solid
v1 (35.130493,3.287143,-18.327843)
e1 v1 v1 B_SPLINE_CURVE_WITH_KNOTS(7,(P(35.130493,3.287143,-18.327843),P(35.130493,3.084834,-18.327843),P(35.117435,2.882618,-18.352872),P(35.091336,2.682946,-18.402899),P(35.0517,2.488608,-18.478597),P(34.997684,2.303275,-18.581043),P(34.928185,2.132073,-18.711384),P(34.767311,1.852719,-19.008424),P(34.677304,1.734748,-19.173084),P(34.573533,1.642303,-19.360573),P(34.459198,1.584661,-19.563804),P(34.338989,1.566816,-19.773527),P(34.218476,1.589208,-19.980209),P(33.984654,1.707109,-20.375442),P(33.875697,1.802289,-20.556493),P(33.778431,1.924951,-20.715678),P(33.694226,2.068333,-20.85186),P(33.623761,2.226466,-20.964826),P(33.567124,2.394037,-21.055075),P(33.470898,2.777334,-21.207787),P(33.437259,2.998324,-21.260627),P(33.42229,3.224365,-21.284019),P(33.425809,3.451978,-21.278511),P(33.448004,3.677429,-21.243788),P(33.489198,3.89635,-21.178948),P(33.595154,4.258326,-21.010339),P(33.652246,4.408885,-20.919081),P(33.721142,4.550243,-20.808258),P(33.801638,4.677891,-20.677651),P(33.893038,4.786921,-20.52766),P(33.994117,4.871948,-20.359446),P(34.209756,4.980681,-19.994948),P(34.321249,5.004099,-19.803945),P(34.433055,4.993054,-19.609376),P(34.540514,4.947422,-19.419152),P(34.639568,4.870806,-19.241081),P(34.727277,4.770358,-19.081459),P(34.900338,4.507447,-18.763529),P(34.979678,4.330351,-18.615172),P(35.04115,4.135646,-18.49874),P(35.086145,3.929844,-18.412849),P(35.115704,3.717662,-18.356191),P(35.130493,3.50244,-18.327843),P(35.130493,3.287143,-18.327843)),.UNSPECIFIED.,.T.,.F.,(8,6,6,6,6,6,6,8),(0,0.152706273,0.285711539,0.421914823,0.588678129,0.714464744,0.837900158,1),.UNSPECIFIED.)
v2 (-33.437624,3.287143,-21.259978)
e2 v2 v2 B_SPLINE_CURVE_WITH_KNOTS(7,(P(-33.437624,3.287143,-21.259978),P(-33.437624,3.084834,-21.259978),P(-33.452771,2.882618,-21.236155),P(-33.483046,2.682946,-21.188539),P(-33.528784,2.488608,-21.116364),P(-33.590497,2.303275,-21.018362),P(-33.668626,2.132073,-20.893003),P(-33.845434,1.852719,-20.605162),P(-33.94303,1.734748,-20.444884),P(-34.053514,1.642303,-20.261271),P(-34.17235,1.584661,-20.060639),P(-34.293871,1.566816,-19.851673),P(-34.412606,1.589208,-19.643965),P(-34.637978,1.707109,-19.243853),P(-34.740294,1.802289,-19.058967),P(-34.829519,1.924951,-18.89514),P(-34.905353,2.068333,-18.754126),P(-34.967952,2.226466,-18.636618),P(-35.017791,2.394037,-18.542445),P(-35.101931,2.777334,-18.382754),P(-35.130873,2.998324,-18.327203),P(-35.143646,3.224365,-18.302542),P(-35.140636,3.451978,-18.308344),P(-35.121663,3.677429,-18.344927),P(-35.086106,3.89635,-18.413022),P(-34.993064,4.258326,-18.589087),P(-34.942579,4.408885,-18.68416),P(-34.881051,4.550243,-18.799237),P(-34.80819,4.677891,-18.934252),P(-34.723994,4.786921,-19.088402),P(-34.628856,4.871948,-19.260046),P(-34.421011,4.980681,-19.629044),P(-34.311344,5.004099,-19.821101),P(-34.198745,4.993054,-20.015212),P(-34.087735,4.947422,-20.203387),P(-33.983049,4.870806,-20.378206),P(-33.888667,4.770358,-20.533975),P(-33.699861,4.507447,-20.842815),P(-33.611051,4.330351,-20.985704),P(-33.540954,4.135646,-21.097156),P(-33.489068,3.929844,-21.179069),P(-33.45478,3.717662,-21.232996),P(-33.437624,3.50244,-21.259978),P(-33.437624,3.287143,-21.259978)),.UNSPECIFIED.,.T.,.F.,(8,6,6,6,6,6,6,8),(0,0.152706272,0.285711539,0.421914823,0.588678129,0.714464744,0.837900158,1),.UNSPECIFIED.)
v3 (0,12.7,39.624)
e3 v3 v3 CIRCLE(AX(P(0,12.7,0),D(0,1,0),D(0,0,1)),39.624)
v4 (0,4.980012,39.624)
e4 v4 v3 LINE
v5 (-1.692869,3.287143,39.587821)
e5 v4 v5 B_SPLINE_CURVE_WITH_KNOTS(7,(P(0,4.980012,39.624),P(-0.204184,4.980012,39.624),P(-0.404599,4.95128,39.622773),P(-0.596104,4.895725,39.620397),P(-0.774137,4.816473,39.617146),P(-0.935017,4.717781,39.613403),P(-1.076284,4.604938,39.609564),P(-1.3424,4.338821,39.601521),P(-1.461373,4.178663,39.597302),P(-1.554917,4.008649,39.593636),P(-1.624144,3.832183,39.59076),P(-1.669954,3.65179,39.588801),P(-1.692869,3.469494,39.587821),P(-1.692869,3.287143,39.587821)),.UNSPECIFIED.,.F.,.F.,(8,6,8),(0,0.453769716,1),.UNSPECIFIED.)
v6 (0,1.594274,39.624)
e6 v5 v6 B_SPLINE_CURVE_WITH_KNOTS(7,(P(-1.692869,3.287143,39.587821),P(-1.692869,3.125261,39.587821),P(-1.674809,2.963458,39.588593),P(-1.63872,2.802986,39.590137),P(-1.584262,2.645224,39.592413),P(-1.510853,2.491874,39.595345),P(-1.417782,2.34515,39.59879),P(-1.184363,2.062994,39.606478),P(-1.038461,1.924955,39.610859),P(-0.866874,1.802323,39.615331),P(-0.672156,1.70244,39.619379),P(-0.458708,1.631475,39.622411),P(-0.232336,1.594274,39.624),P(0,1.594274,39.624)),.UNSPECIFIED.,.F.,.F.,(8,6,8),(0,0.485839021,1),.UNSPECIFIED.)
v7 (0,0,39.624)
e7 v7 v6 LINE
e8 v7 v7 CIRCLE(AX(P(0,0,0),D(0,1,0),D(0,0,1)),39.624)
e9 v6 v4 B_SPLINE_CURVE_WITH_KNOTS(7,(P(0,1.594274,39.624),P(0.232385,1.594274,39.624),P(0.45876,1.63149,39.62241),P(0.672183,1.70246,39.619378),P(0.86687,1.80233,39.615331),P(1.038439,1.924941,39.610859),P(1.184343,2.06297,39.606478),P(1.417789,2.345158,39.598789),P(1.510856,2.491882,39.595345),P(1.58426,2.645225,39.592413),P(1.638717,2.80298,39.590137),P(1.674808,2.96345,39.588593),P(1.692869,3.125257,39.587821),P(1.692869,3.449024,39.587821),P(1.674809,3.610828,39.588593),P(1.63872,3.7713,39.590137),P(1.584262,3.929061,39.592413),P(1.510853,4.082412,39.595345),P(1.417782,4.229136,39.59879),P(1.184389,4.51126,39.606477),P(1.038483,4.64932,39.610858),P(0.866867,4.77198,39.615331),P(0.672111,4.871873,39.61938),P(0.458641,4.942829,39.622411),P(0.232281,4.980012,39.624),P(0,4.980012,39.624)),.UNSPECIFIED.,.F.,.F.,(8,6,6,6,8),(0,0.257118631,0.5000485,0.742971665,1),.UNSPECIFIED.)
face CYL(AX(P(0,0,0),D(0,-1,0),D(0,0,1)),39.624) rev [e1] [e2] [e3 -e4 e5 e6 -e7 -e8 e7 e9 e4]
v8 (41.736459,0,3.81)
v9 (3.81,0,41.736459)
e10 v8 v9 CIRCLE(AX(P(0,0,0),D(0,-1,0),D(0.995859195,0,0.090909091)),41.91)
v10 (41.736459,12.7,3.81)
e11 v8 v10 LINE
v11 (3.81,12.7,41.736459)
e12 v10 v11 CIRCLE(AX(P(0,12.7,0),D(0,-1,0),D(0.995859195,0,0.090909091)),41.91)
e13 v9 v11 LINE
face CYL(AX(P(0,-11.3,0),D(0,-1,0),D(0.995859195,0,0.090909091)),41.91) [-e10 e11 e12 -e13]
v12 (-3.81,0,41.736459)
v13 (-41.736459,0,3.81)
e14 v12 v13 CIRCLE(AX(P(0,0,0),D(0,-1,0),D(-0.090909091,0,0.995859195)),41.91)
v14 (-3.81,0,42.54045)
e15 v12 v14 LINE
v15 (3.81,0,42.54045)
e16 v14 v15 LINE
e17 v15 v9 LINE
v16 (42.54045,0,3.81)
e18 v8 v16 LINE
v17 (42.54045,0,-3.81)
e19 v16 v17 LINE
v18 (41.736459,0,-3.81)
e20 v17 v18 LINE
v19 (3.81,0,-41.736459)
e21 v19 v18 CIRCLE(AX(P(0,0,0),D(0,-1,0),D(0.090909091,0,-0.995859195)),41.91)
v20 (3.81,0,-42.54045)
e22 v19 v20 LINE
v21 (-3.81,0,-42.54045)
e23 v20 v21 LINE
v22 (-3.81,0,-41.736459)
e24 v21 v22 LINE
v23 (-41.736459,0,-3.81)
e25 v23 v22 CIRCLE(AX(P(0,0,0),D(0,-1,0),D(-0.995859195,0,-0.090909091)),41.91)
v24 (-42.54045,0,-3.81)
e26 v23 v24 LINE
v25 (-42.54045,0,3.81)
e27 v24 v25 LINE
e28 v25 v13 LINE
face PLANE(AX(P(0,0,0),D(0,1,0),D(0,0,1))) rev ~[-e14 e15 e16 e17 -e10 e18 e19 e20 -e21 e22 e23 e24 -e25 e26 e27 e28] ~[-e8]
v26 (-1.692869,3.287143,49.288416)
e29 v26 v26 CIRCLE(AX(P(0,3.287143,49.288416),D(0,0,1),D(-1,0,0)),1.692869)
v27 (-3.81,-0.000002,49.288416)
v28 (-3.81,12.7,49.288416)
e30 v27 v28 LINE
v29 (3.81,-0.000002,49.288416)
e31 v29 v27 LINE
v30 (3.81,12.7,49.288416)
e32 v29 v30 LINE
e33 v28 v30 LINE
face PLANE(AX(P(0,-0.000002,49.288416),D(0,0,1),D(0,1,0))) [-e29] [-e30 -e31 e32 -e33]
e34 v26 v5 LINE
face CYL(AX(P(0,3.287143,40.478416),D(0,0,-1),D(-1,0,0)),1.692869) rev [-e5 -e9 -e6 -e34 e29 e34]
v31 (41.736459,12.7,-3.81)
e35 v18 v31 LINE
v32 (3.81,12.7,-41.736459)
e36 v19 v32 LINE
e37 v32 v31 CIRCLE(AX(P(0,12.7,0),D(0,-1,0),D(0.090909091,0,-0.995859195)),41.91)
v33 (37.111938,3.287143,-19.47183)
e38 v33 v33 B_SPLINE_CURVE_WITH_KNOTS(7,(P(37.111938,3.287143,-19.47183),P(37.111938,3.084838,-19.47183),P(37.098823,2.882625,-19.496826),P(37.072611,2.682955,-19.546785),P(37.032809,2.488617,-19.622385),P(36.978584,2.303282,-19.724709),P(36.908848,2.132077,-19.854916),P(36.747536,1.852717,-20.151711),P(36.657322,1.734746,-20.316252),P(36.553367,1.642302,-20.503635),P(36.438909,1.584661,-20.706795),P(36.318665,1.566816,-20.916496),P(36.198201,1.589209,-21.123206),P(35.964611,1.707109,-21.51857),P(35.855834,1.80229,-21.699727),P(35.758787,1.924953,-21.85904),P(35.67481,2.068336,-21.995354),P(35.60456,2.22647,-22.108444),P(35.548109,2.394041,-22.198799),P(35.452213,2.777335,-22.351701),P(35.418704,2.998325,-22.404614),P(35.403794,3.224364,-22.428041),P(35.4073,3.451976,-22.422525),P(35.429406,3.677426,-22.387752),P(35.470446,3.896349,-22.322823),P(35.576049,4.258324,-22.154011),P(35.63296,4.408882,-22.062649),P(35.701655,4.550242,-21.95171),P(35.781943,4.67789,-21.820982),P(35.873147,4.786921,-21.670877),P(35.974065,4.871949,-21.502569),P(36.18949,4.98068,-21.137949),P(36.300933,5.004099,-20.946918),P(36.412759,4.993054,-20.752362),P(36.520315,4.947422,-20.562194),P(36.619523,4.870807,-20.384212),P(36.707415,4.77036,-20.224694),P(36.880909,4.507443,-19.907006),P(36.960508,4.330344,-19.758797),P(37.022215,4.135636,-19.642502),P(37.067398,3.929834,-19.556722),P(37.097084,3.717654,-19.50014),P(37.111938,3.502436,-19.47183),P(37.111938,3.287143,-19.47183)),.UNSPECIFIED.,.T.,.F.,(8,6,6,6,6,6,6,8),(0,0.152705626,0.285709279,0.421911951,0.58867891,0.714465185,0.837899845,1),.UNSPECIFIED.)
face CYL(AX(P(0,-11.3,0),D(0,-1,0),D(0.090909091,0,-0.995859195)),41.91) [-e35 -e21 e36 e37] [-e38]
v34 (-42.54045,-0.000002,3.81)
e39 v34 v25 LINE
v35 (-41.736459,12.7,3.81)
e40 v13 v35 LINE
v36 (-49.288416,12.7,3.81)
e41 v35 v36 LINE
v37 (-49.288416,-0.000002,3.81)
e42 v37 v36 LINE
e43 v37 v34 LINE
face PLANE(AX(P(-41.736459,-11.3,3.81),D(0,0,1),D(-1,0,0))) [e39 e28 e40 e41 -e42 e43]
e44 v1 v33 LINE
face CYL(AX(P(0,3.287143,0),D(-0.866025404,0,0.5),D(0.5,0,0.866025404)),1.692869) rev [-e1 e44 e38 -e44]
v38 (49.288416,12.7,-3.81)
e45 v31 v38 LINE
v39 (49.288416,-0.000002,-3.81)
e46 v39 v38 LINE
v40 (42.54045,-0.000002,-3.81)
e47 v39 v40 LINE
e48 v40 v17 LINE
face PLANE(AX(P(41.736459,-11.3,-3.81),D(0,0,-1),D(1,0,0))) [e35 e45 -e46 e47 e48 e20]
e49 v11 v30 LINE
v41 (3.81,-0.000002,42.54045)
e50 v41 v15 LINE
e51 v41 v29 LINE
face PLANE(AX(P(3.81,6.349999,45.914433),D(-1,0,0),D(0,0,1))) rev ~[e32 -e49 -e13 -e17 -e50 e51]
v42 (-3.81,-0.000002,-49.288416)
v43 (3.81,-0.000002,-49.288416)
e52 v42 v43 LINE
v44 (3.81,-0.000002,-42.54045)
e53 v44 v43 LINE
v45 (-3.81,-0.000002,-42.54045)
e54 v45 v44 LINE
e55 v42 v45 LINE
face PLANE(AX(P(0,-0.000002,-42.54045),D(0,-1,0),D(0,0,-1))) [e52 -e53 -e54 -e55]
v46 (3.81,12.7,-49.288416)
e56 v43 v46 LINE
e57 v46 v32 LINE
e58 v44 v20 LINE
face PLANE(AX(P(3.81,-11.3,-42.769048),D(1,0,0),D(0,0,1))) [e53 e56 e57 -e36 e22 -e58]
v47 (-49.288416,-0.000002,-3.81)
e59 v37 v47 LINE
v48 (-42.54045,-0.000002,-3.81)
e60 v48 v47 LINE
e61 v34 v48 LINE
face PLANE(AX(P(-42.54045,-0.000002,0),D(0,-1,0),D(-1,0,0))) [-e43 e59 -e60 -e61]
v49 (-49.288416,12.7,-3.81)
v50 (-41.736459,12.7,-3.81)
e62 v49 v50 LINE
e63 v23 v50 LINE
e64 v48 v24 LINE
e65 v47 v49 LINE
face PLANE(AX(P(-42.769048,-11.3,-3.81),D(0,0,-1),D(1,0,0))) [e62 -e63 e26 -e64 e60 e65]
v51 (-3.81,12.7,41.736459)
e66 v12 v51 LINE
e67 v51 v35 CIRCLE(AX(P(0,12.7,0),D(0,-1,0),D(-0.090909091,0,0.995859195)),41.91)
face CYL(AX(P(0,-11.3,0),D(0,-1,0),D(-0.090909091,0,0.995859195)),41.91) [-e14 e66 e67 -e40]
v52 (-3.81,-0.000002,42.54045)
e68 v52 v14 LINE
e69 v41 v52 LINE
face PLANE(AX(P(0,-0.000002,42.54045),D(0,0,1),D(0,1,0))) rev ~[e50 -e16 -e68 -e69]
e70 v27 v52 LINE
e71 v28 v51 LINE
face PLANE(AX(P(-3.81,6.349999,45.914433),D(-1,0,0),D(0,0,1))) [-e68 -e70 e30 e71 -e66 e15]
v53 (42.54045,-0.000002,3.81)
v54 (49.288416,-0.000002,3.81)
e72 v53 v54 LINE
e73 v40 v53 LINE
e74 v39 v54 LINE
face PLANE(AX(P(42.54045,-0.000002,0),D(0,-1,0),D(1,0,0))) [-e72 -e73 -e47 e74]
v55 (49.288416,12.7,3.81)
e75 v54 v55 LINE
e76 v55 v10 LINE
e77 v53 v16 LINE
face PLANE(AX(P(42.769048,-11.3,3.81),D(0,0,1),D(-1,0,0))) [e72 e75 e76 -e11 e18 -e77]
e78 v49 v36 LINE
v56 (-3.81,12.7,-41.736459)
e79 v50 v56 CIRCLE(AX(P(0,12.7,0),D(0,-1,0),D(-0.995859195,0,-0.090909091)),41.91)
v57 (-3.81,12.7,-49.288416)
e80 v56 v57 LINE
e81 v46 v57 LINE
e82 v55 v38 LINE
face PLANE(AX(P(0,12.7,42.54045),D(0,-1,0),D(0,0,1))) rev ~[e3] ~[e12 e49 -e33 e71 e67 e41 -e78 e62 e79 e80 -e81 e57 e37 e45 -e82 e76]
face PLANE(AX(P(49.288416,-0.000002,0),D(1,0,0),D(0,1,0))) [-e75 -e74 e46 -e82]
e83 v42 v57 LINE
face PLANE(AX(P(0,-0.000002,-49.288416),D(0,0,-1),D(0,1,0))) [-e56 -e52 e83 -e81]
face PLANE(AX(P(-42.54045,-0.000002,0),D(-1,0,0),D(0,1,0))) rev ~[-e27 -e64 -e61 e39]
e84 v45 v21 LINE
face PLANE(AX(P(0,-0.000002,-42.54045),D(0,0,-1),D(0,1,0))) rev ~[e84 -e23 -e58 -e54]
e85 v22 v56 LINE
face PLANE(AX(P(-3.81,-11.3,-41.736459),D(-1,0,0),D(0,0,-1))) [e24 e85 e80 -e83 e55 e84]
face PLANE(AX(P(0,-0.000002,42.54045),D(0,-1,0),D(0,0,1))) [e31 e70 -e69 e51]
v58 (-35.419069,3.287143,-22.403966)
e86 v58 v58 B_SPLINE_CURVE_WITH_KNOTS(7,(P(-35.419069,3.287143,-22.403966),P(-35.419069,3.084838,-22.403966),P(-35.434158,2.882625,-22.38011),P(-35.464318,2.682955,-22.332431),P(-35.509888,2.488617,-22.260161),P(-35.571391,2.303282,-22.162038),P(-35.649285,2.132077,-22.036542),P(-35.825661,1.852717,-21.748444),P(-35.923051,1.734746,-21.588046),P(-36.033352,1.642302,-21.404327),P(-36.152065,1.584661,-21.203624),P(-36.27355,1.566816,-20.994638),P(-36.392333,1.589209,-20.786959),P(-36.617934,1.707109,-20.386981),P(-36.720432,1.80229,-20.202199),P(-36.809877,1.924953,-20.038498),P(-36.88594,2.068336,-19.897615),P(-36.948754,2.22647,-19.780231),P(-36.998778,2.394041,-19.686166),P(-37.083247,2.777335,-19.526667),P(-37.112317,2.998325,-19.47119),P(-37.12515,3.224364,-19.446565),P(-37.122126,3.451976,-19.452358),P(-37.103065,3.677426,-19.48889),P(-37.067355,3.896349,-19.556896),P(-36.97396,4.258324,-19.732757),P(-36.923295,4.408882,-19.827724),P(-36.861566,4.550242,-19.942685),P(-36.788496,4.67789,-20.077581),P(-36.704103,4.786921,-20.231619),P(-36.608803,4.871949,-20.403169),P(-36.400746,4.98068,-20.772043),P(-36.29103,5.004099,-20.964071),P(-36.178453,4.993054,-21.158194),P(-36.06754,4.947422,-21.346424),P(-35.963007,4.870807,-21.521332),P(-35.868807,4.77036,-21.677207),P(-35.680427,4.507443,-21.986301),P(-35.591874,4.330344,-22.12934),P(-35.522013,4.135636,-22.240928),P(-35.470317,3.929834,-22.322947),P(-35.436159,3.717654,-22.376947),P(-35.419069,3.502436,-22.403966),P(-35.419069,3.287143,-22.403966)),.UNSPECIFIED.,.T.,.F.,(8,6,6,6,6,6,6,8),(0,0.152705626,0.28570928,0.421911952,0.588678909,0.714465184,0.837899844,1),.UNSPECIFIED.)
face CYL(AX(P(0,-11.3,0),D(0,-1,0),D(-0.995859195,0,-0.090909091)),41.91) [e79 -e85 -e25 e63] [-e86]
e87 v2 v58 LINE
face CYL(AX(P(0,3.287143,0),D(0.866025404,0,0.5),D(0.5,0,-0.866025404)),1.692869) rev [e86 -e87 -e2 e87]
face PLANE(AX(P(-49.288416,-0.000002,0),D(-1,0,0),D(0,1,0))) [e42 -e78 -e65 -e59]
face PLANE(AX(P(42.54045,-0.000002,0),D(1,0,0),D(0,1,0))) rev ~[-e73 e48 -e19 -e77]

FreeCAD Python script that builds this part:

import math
import FreeCAD as App
import Part
import Sketcher
from FreeCAD import Vector
Q = App.Units.Quantity


def add_polygon(sketch, points):
    """Adds a closed chain of lines whose ends are joined by coincident constraints."""
    first, n = sketch.GeometryCount, len(points)
    for a, b in zip(points, points[1:] + points[:1]):
        sketch.addGeometry(Part.LineSegment(App.Vector(*a, 0), App.Vector(*b, 0)), False)
    for i in range(n):
        sketch.addConstraint(Sketcher.Constraint("Coincident", first + i, 2, first + (i + 1) % n, 1))

doc = App.newDocument("Part")
body = doc.addObject("PartDesign::Body", "Body")

# Sketch on XZ plane
sketch1 = body.newObject("Sketcher::SketchObject", "Sketch")
sketch1.AttachmentSupport = (doc.getObject("XZ_Plane"), [""])
sketch1.MapMode = "FlatFace"
sketch1.addGeometry(Part.Circle(Vector(0, 0, 0), Vector(0, 0, 1), 43), False)
sketch1.addGeometry(Part.Circle(Vector(0, 0, 0), Vector(0, 0, 1), 40), False)
sketch1.addConstraint(Sketcher.Constraint("Coincident", 0, 3, -1, 1))
sketch1.addConstraint(Sketcher.Constraint("Coincident", 1, 3, -1, 1))
sketch1.addConstraint(Sketcher.Constraint("Diameter", 1, Q("3.12 in")))
sketch1.addConstraint(Sketcher.Constraint("Diameter", 0, 85.876832))
pad1 = body.newObject("PartDesign::Pad", "Pad")
pad1.Profile = sketch1
pad1.Length = Q("0.5 in")
pad1.Reversed = True

# Sketch on XY plane
sketch2 = body.newObject("Sketcher::SketchObject", "Sketch001")
sketch2.AttachmentSupport = (doc.getObject("XY_Plane"), [""])
sketch2.MapMode = "FlatFace"
sketch2.addGeometry(Part.Circle(Vector(0, 3.3, 0), Vector(0, 0, 1), 1.7), False)
sketch2.addConstraint(Sketcher.Constraint("PointOnObject", 0, 3, -2))
sketch2.addConstraint(Sketcher.Constraint("Diameter", 0, 3.385738))
sketch2.addConstraint(Sketcher.Constraint("DistanceY", -1, 1, 0, 3, 3.287143))
pocket1 = body.newObject("PartDesign::Pocket", "Pocket")
pocket1.Profile = sketch2
pocket1.Length = 72.35
pocket1.Reversed = True
doc.recompute()

polarpattern = body.newObject("PartDesign::PolarPattern", "PolarPattern")
polarpattern.Originals = [pocket1]
polarpattern.Axis = (doc.getObject("Y_Axis"), [""])
polarpattern.Angle = 360
polarpattern.Occurrences = 3
body.Tip = polarpattern

# Sketch on XY plane
sketch3 = body.newObject("Sketcher::SketchObject", "Sketch002")
sketch3.AttachmentSupport = (doc.getObject("XY_Plane"), [""])
sketch3.MapMode = "FlatFace"
add_polygon(sketch3, [(43, 13), (43, 0), (49, 0), (49, 13)])  # lines 0-3
sketch3.addConstraint(Sketcher.Constraint("Vertical", 0))
sketch3.addConstraint(Sketcher.Constraint("Horizontal", 1))
sketch3.addConstraint(Sketcher.Constraint("Vertical", 2))
sketch3.addConstraint(Sketcher.Constraint("Horizontal", 3))
sketch3.addConstraint(Sketcher.Constraint("DistanceY", 0, 2, 0, 1, Q("0.5000001 in")))
sketch3.addConstraint(Sketcher.Constraint("DistanceY", -1, 1, 2, 2, Q("0.5 in")))
sketch3.addConstraint(Sketcher.Constraint("DistanceX", 1, 1, 1, 2, 6.747966))
sketch3.addConstraint(Sketcher.Constraint("DistanceX", -1, 1, 0, 2, 42.54045))
pad2 = body.newObject("PartDesign::Pad", "Pad001")
pad2.Profile = sketch3
pad2.Length = Q("0.3 in")
pad2.Midplane = True
doc.recompute()

polarpattern2 = body.newObject("PartDesign::PolarPattern", "PolarPattern001")
polarpattern2.Originals = [pad2]
polarpattern2.Axis = (doc.getObject("Y_Axis"), [""])
polarpattern2.Angle = 360
polarpattern2.Occurrences = 4
body.Tip = polarpattern2

# Sketch on XY plane
sketch4 = body.newObject("Sketcher::SketchObject", "Sketch003")
sketch4.AttachmentSupport = (doc.getObject("XY_Plane"), [""])
sketch4.MapMode = "FlatFace"
sketch4.AttachmentOffset = App.Placement(Vector(0, 0, 40.478416), App.Rotation())
sketch4.addGeometry(Part.Circle(Vector(0, 3.3, 0), Vector(0, 0, 1), 1.7), False)
sketch4.addConstraint(Sketcher.Constraint("PointOnObject", 0, 3, -2))
sketch4.addConstraint(Sketcher.Constraint("Diameter", 0, 3.385738))
sketch4.addConstraint(Sketcher.Constraint("DistanceY", -1, 1, 0, 3, 3.287143))
pocket2 = body.newObject("PartDesign::Pocket", "Pocket001")
pocket2.Profile = sketch4
pocket2.Length = 8.81
pocket2.Reversed = True

# Sketch on XZ plane
sketch5 = body.newObject("Sketcher::SketchObject", "Sketch004")
sketch5.AttachmentSupport = (doc.getObject("XZ_Plane"), [""])
sketch5.MapMode = "FlatFace"
sketch5.AttachmentOffset = App.Placement(Vector(0, 0, 11.3), App.Rotation())
sketch5.addGeometry(Part.LineSegment(Vector(-41.7, 3.8, 0), Vector(-42.8, 3.8, 0)), False)
sketch5.addGeometry(Part.ArcOfCircle(Part.Circle(Vector(0, 0, 0), Vector(0, 0, 1), 42.9), math.radians(95), math.radians(175)), False)
sketch5.addGeometry(Part.LineSegment(Vector(-3.8, 42.8, 0), Vector(-3.8, 41.7, 0)), False)
sketch5.addGeometry(Part.ArcOfCircle(Part.Circle(Vector(0, 0, 0), Vector(0, 0, 1), 41.9), math.radians(95), math.radians(175)), False)
sketch5.addGeometry(Part.LineSegment(Vector(3.8, 41.7, 0), Vector(3.8, 42.8, 0)), False)
sketch5.addGeometry(Part.ArcOfCircle(Part.Circle(Vector(0, 0, 0), Vector(0, 0, 1), 42.9), math.radians(5), math.radians(85)), False)
sketch5.addGeometry(Part.LineSegment(Vector(42.8, 3.8, 0), Vector(41.7, 3.8, 0)), False)
sketch5.addGeometry(Part.ArcOfCircle(Part.Circle(Vector(0, 0, 0), Vector(0, 0, 1), 41.9), math.radians(5), math.radians(85)), False)
sketch5.addGeometry(Part.ArcOfCircle(Part.Circle(Vector(0, 0, 0), Vector(0, 0, 1), 42.9), math.radians(-85), math.radians(-5)), False)
sketch5.addGeometry(Part.LineSegment(Vector(3.8, -42.8, 0), Vector(3.8, -41.7, 0)), False)
sketch5.addGeometry(Part.ArcOfCircle(Part.Circle(Vector(0, 0, 0), Vector(0, 0, 1), 41.9), math.radians(-85), math.radians(-5)), False)
sketch5.addGeometry(Part.LineSegment(Vector(41.7, -3.8, 0), Vector(42.8, -3.8, 0)), False)
sketch5.addGeometry(Part.ArcOfCircle(Part.Circle(Vector(0, 0, 0), Vector(0, 0, 1), 42.9), math.radians(-175), math.radians(-95)), False)
sketch5.addGeometry(Part.LineSegment(Vector(-42.8, -3.8, 0), Vector(-41.7, -3.8, 0)), False)
sketch5.addGeometry(Part.ArcOfCircle(Part.Circle(Vector(0, 0, 0), Vector(0, 0, 1), 41.9), math.radians(-175), math.radians(-95)), False)
sketch5.addGeometry(Part.LineSegment(Vector(-3.8, -41.7, 0), Vector(-3.8, -42.8, 0)), False)
sketch5.addConstraint(Sketcher.Constraint("Coincident", 0, 2, 1, 2))
sketch5.addConstraint(Sketcher.Constraint("Coincident", 1, 1, 2, 1))
sketch5.addConstraint(Sketcher.Constraint("Coincident", 2, 2, 3, 1))
sketch5.addConstraint(Sketcher.Constraint("Coincident", 3, 2, 0, 1))
sketch5.addConstraint(Sketcher.Constraint("Coincident", 4, 2, 5, 2))
sketch5.addConstraint(Sketcher.Constraint("Coincident", 5, 1, 6, 1))
sketch5.addConstraint(Sketcher.Constraint("Coincident", 6, 2, 7, 1))
sketch5.addConstraint(Sketcher.Constraint("Coincident", 7, 2, 4, 1))
sketch5.addConstraint(Sketcher.Constraint("Coincident", 8, 1, 9, 1))
sketch5.addConstraint(Sketcher.Constraint("Coincident", 9, 2, 10, 1))
sketch5.addConstraint(Sketcher.Constraint("Coincident", 10, 2, 11, 1))
sketch5.addConstraint(Sketcher.Constraint("Coincident", 11, 2, 8, 2))
sketch5.addConstraint(Sketcher.Constraint("Coincident", 12, 1, 13, 1))
sketch5.addConstraint(Sketcher.Constraint("Coincident", 13, 2, 14, 1))
sketch5.addConstraint(Sketcher.Constraint("Coincident", 14, 2, 15, 1))
sketch5.addConstraint(Sketcher.Constraint("Coincident", 15, 2, 12, 2))
sketch5.addConstraint(Sketcher.Constraint("Horizontal", 0))
sketch5.addConstraint(Sketcher.Constraint("Vertical", 2))
sketch5.addConstraint(Sketcher.Constraint("Vertical", 4))
sketch5.addConstraint(Sketcher.Constraint("Horizontal", 6))
sketch5.addConstraint(Sketcher.Constraint("Vertical", 9))
sketch5.addConstraint(Sketcher.Constraint("Horizontal", 11))
sketch5.addConstraint(Sketcher.Constraint("Horizontal", 13))
sketch5.addConstraint(Sketcher.Constraint("Vertical", 15))
sketch5.addConstraint(Sketcher.Constraint("Coincident", 1, 3, -1, 1))
sketch5.addConstraint(Sketcher.Constraint("Coincident", 3, 3, -1, 1))
sketch5.addConstraint(Sketcher.Constraint("Coincident", 5, 3, -1, 1))
sketch5.addConstraint(Sketcher.Constraint("Coincident", 7, 3, -1, 1))
sketch5.addConstraint(Sketcher.Constraint("Coincident", 8, 3, -1, 1))
sketch5.addConstraint(Sketcher.Constraint("Coincident", 10, 3, -1, 1))
sketch5.addConstraint(Sketcher.Constraint("Coincident", 12, 3, -1, 1))
sketch5.addConstraint(Sketcher.Constraint("Coincident", 14, 3, -1, 1))
sketch5.addConstraint(Sketcher.Constraint("Equal", 1, 5))
sketch5.addConstraint(Sketcher.Constraint("Equal", 3, 7))
sketch5.addConstraint(Sketcher.Constraint("Equal", 5, 8))
sketch5.addConstraint(Sketcher.Constraint("Equal", 7, 10))
sketch5.addConstraint(Sketcher.Constraint("Equal", 8, 12))
sketch5.addConstraint(Sketcher.Constraint("Equal", 10, 14))
sketch5.addConstraint(Sketcher.Constraint("Horizontal", 1, 1, 4, 2))
sketch5.addConstraint(Sketcher.Constraint("Horizontal", 3, 2, 5, 1))
sketch5.addConstraint(Sketcher.Constraint("Horizontal", 11, 2, 12, 1))
sketch5.addConstraint(Sketcher.Constraint("Horizontal", 9, 2, 14, 2))
sketch5.addConstraint(Sketcher.Constraint("Vertical", 7, 2, 8, 1))
sketch5.addConstraint(Sketcher.Constraint("Vertical", 6, 2, 10, 2))
sketch5.addConstraint(Sketcher.Constraint("Radius", 3, Q("1.65 in")))
sketch5.addConstraint(Sketcher.Constraint("DistanceX", 1, 1, 4, 2, Q("0.3 in")))
sketch5.addConstraint(Sketcher.Constraint("DistanceY", 10, 2, 6, 2, Q("0.3 in")))
sketch5.addConstraint(Sketcher.Constraint("Radius", 1, 42.938416))
pocket3 = body.newObject("PartDesign::Pocket", "Pocket002")
pocket3.Profile = sketch5
pocket3.Length = 24

doc.recompute()
